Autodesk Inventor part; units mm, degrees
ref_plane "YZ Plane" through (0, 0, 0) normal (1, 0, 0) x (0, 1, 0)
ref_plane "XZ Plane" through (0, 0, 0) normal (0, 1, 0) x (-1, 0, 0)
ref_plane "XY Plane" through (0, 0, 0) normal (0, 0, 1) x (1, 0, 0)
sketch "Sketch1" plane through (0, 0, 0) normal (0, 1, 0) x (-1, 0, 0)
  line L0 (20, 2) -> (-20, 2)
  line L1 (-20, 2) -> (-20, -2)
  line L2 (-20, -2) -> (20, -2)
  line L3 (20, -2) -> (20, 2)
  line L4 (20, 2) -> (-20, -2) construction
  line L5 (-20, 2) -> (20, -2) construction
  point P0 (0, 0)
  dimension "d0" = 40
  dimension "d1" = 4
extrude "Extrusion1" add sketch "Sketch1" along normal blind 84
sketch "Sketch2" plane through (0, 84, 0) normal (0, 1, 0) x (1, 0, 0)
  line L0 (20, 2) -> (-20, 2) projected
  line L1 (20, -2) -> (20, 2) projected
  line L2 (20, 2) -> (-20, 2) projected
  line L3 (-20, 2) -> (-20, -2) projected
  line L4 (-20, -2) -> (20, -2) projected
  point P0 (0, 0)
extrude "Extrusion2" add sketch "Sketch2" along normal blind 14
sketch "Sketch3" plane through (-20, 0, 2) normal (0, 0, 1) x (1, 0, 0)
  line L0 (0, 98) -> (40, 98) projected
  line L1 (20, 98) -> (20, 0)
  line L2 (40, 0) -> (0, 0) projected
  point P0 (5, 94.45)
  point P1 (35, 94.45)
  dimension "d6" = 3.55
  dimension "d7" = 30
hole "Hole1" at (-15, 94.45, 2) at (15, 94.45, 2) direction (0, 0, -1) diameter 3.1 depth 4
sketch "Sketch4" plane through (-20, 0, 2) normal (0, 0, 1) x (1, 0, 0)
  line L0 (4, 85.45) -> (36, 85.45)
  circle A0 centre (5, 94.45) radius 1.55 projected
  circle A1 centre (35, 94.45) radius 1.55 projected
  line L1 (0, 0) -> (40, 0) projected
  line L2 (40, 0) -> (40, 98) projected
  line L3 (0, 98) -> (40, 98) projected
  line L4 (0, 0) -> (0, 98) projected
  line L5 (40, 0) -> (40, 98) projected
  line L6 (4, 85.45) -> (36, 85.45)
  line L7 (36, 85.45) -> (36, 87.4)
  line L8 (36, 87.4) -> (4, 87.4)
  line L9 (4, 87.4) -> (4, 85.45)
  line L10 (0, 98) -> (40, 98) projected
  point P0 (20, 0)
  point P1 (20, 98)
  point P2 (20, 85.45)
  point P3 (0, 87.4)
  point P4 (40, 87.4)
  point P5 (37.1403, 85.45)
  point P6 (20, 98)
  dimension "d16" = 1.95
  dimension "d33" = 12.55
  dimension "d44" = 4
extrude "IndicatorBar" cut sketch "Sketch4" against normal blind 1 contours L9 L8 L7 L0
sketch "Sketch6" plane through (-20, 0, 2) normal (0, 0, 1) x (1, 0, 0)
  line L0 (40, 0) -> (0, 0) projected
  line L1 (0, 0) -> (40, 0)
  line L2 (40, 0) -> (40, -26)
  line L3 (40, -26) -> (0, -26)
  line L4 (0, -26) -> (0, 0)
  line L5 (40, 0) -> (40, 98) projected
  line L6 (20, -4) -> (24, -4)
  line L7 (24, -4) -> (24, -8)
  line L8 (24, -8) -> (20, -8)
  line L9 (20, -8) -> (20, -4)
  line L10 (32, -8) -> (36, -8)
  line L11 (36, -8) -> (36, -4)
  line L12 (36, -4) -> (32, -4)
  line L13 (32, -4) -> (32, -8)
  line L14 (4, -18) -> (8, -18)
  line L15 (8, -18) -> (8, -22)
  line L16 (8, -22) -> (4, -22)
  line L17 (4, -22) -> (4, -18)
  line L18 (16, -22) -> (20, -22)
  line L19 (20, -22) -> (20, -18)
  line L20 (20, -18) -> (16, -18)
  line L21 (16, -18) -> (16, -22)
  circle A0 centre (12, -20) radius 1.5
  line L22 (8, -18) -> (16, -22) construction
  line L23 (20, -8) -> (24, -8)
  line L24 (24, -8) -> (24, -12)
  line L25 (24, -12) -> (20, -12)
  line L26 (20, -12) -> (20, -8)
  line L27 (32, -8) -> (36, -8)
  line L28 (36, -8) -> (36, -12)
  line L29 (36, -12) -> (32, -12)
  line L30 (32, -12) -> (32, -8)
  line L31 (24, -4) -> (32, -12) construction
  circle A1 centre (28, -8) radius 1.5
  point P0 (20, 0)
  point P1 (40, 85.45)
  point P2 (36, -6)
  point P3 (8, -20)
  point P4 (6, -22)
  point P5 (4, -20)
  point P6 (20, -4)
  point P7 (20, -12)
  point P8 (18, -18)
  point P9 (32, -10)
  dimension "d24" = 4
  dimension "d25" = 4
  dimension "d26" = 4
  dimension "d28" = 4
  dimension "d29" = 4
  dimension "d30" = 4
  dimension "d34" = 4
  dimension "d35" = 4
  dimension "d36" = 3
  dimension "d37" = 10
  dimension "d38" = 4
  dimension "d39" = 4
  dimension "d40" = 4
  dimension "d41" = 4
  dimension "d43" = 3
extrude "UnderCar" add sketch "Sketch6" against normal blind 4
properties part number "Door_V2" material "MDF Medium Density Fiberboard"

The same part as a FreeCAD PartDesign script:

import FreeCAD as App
import Part
import Sketcher
from FreeCAD import Vector


def add_polygon(sketch, points):
    """Adds a closed chain of lines whose ends are joined by coincident constraints."""
    first, n = sketch.GeometryCount, len(points)
    for a, b in zip(points, points[1:] + points[:1]):
        sketch.addGeometry(Part.LineSegment(App.Vector(*a, 0), App.Vector(*b, 0)), False)
    for i in range(n):
        sketch.addConstraint(Sketcher.Constraint("Coincident", first + i, 2, first + (i + 1) % n, 1))

doc = App.newDocument("Part")
body = doc.addObject("PartDesign::Body", "Body")

sketch1 = body.newObject("Sketcher::SketchObject", "Sketch")
sketch1.AttachmentSupport = (doc.getObject("XZ_Plane"), [""])
sketch1.MapMode = "FlatFace"
add_polygon(sketch1, [(-20, -2), (-20, 2), (20, 2), (20, -2)])
sketch1.addConstraint([
    Sketcher.Constraint("Vertical", 0),
    Sketcher.Constraint("Horizontal", 1),
    Sketcher.Constraint("Vertical", 2),
    Sketcher.Constraint("Horizontal", 3),
    Sketcher.Constraint("Symmetric", 0, 2, 2, 2, -1, 1),
    Sketcher.Constraint("DistanceX", 1, 1, 1, 2, 40.0),
    Sketcher.Constraint("DistanceY", 0, 1, 0, 2, 4.0),
])
pad1 = body.newObject("PartDesign::Pad", "Pad")
pad1.Profile = sketch1
pad1.Length = 84
pad1.Reversed = True

sketch2 = body.newObject("Sketcher::SketchObject", "Sketch001")
sketch2.AttachmentSupport = (doc.getObject("XZ_Plane"), [""])
sketch2.MapMode = "FlatFace"
sketch2.AttachmentOffset = App.Placement(Vector(0, 0, -84), App.Rotation())
add_polygon(sketch2, [(20, 2), (20, -2), (-20, -2), (-20, 2)])
sketch2.addConstraint([
    Sketcher.Constraint("Vertical", 0),
    Sketcher.Constraint("Horizontal", 1),
    Sketcher.Constraint("Vertical", 2),
    Sketcher.Constraint("Horizontal", 3),
    Sketcher.Constraint("Symmetric", 0, 2, 2, 2, -1, 1),
    Sketcher.Constraint("DistanceX", 1, 2, 1, 1, 40.0),
    Sketcher.Constraint("DistanceY", 0, 2, 0, 1, 4.0),
])
pad2 = body.newObject("PartDesign::Pad", "Pad001")
pad2.Profile = sketch2
pad2.Length = 14
pad2.Reversed = True

sketch3 = body.newObject("Sketcher::SketchObject", "Sketch002")
sketch3.AttachmentSupport = (doc.getObject("XY_Plane"), [""])
sketch3.MapMode = "FlatFace"
sketch3.AttachmentOffset = App.Placement(Vector(0, 0, 2), App.Rotation())
sketch3.addGeometry([
    Part.Circle(Vector(-15, 94.5, 0), Vector(0, 0, 1), 1.6),
    Part.Circle(Vector(15, 94.5, 0), Vector(0, 0, 1), 1.6),
], False)
sketch3.addConstraint([
    Sketcher.Constraint("Equal", 0, 1),
    Sketcher.Constraint("Symmetric", 0, 3, 1, 3, -2),
    Sketcher.Constraint("Diameter", 0, 3.1),
    Sketcher.Constraint("DistanceX", 0, 3, -1, 1, 15.0),
    Sketcher.Constraint("DistanceY", -1, 1, 0, 3, 94.45),
])
doc.recompute()
hole = body.newObject("PartDesign::Hole", "Hole")
hole.Profile = sketch3
hole.ThreadType = "None"
hole.Diameter = 3.1
hole.DepthType = "Dimension"
hole.Depth = 4
hole.DrillPoint = "Flat"

sketch4 = body.newObject("Sketcher::SketchObject", "Sketch003")
sketch4.AttachmentSupport = (doc.getObject("XY_Plane"), [""])
sketch4.MapMode = "FlatFace"
sketch4.AttachmentOffset = App.Placement(Vector(0, 0, 2), App.Rotation())
add_polygon(sketch4, [(-16, 87.4), (-16, 85.5), (16, 85.5), (16, 87.4)])
sketch4.addConstraint([
    Sketcher.Constraint("Vertical", 0),
    Sketcher.Constraint("Horizontal", 1),
    Sketcher.Constraint("Vertical", 2),
    Sketcher.Constraint("Horizontal", 3),
    Sketcher.Constraint("DistanceY", 0, 2, 0, 1, 1.95),
    Sketcher.Constraint("DistanceX", 1, 1, 1, 2, 32.0),
    Sketcher.Constraint("DistanceX", 0, 2, -1, 1, 16.0),
    Sketcher.Constraint("DistanceY", -1, 1, 2, 2, 87.4),
])
pocket1 = body.newObject("PartDesign::Pocket", "Pocket")
pocket1.Profile = sketch4
pocket1.Length = 1

sketch5 = body.newObject("Sketcher::SketchObject", "Sketch004")
sketch5.AttachmentSupport = (doc.getObject("XY_Plane"), [""])
sketch5.MapMode = "FlatFace"
sketch5.AttachmentOffset = App.Placement(Vector(0, 0, 2), App.Rotation())
add_polygon(sketch5, [(20, -26), (20, 0), (-20, 0), (-20, -26)])
add_polygon(sketch5, [(-16, -22), (-16, -18), (-12, -18), (-12, -22)])
sketch5.addGeometry(Part.Circle(Vector(-8, -20, 0), Vector(0, 0, 1), 1.5), False)
add_polygon(sketch5, [(0, -22), (-4, -22), (-4, -18), (0, -18)])
add_polygon(sketch5, [(0, -12), (0, -4), (4, -4), (4, -12)])
sketch5.addGeometry(Part.Circle(Vector(8, -8, 0), Vector(0, 0, 1), 1.5), False)
add_polygon(sketch5, [(12, -12), (12, -4), (16, -4), (16, -12)])
sketch5.addConstraint([
    Sketcher.Constraint("Vertical", 0),
    Sketcher.Constraint("Horizontal", 1),
    Sketcher.Constraint("Vertical", 2),
    Sketcher.Constraint("Horizontal", 3),
    Sketcher.Constraint("Vertical", 4),
    Sketcher.Constraint("Horizontal", 5),
    Sketcher.Constraint("Vertical", 6),
    Sketcher.Constraint("Horizontal", 7),
    Sketcher.Constraint("Horizontal", 9),
    Sketcher.Constraint("Vertical", 10),
    Sketcher.Constraint("Horizontal", 11),
    Sketcher.Constraint("Vertical", 12),
    Sketcher.Constraint("Vertical", 13),
    Sketcher.Constraint("Horizontal", 14),
    Sketcher.Constraint("Vertical", 15),
    Sketcher.Constraint("Horizontal", 16),
    Sketcher.Constraint("Vertical", 18),
    Sketcher.Constraint("Horizontal", 19),
    Sketcher.Constraint("Vertical", 20),
    Sketcher.Constraint("Horizontal", 21),
    Sketcher.Constraint("Equal", 8, 17),
    Sketcher.Constraint("Symmetric", 0, 2, 1, 2, -1, 1),
    Sketcher.Constraint("PointOnObject", 11, 2, -2),
    Sketcher.Constraint("PointOnObject", 13, 2, -2),
    Sketcher.Constraint("Horizontal", 7, 2, 9, 2),
    Sketcher.Constraint("Horizontal", 5, 2, 10, 2),
    Sketcher.Constraint("Horizontal", 14, 2, 18, 2),
    Sketcher.Constraint("Horizontal", 16, 2, 20, 2),
    Sketcher.Constraint("Equal", 7, 9),
    Sketcher.Constraint("Equal", 11, 14),
    Sketcher.Constraint("Equal", 16, 19),
    Sketcher.Constraint("Equal", 21, 4),
    Sketcher.Constraint("Diameter", 8, 3.0),
    Sketcher.Constraint("DistanceX", 5, 1, 5, 2, 4.0),
    Sketcher.Constraint("DistanceY", 13, 2, -1, 1, 4.0),
    Sketcher.Constraint("DistanceX", 2, 2, 4, 2, 4.0),
    Sketcher.Constraint("DistanceY", 4, 2, 17, 3, 10.0),
    Sketcher.Constraint("DistanceX", 5, 2, 8, 3, 4.0),
    Sketcher.Constraint("DistanceY", 2, 2, 6, 2, 4.0),
    Sketcher.Constraint("DistanceX", 8, 3, 9, 2, 4.0),
    Sketcher.Constraint("DistanceY", 17, 3, 13, 2, 4.0),
    Sketcher.Constraint("DistanceX", 14, 2, 17, 3, 4.0),
    Sketcher.Constraint("DistanceY", 15, 2, 17, 3, 4.0),
    Sketcher.Constraint("DistanceX", 17, 3, 18, 2, 4.0),
    Sketcher.Constraint("DistanceY", 8, 3, -1, 1, 20.0),
])
pad3 = body.newObject("PartDesign::Pad", "Pad002")
pad3.Profile = sketch5
pad3.Length = 4
pad3.Reversed = True

doc.recompute()
